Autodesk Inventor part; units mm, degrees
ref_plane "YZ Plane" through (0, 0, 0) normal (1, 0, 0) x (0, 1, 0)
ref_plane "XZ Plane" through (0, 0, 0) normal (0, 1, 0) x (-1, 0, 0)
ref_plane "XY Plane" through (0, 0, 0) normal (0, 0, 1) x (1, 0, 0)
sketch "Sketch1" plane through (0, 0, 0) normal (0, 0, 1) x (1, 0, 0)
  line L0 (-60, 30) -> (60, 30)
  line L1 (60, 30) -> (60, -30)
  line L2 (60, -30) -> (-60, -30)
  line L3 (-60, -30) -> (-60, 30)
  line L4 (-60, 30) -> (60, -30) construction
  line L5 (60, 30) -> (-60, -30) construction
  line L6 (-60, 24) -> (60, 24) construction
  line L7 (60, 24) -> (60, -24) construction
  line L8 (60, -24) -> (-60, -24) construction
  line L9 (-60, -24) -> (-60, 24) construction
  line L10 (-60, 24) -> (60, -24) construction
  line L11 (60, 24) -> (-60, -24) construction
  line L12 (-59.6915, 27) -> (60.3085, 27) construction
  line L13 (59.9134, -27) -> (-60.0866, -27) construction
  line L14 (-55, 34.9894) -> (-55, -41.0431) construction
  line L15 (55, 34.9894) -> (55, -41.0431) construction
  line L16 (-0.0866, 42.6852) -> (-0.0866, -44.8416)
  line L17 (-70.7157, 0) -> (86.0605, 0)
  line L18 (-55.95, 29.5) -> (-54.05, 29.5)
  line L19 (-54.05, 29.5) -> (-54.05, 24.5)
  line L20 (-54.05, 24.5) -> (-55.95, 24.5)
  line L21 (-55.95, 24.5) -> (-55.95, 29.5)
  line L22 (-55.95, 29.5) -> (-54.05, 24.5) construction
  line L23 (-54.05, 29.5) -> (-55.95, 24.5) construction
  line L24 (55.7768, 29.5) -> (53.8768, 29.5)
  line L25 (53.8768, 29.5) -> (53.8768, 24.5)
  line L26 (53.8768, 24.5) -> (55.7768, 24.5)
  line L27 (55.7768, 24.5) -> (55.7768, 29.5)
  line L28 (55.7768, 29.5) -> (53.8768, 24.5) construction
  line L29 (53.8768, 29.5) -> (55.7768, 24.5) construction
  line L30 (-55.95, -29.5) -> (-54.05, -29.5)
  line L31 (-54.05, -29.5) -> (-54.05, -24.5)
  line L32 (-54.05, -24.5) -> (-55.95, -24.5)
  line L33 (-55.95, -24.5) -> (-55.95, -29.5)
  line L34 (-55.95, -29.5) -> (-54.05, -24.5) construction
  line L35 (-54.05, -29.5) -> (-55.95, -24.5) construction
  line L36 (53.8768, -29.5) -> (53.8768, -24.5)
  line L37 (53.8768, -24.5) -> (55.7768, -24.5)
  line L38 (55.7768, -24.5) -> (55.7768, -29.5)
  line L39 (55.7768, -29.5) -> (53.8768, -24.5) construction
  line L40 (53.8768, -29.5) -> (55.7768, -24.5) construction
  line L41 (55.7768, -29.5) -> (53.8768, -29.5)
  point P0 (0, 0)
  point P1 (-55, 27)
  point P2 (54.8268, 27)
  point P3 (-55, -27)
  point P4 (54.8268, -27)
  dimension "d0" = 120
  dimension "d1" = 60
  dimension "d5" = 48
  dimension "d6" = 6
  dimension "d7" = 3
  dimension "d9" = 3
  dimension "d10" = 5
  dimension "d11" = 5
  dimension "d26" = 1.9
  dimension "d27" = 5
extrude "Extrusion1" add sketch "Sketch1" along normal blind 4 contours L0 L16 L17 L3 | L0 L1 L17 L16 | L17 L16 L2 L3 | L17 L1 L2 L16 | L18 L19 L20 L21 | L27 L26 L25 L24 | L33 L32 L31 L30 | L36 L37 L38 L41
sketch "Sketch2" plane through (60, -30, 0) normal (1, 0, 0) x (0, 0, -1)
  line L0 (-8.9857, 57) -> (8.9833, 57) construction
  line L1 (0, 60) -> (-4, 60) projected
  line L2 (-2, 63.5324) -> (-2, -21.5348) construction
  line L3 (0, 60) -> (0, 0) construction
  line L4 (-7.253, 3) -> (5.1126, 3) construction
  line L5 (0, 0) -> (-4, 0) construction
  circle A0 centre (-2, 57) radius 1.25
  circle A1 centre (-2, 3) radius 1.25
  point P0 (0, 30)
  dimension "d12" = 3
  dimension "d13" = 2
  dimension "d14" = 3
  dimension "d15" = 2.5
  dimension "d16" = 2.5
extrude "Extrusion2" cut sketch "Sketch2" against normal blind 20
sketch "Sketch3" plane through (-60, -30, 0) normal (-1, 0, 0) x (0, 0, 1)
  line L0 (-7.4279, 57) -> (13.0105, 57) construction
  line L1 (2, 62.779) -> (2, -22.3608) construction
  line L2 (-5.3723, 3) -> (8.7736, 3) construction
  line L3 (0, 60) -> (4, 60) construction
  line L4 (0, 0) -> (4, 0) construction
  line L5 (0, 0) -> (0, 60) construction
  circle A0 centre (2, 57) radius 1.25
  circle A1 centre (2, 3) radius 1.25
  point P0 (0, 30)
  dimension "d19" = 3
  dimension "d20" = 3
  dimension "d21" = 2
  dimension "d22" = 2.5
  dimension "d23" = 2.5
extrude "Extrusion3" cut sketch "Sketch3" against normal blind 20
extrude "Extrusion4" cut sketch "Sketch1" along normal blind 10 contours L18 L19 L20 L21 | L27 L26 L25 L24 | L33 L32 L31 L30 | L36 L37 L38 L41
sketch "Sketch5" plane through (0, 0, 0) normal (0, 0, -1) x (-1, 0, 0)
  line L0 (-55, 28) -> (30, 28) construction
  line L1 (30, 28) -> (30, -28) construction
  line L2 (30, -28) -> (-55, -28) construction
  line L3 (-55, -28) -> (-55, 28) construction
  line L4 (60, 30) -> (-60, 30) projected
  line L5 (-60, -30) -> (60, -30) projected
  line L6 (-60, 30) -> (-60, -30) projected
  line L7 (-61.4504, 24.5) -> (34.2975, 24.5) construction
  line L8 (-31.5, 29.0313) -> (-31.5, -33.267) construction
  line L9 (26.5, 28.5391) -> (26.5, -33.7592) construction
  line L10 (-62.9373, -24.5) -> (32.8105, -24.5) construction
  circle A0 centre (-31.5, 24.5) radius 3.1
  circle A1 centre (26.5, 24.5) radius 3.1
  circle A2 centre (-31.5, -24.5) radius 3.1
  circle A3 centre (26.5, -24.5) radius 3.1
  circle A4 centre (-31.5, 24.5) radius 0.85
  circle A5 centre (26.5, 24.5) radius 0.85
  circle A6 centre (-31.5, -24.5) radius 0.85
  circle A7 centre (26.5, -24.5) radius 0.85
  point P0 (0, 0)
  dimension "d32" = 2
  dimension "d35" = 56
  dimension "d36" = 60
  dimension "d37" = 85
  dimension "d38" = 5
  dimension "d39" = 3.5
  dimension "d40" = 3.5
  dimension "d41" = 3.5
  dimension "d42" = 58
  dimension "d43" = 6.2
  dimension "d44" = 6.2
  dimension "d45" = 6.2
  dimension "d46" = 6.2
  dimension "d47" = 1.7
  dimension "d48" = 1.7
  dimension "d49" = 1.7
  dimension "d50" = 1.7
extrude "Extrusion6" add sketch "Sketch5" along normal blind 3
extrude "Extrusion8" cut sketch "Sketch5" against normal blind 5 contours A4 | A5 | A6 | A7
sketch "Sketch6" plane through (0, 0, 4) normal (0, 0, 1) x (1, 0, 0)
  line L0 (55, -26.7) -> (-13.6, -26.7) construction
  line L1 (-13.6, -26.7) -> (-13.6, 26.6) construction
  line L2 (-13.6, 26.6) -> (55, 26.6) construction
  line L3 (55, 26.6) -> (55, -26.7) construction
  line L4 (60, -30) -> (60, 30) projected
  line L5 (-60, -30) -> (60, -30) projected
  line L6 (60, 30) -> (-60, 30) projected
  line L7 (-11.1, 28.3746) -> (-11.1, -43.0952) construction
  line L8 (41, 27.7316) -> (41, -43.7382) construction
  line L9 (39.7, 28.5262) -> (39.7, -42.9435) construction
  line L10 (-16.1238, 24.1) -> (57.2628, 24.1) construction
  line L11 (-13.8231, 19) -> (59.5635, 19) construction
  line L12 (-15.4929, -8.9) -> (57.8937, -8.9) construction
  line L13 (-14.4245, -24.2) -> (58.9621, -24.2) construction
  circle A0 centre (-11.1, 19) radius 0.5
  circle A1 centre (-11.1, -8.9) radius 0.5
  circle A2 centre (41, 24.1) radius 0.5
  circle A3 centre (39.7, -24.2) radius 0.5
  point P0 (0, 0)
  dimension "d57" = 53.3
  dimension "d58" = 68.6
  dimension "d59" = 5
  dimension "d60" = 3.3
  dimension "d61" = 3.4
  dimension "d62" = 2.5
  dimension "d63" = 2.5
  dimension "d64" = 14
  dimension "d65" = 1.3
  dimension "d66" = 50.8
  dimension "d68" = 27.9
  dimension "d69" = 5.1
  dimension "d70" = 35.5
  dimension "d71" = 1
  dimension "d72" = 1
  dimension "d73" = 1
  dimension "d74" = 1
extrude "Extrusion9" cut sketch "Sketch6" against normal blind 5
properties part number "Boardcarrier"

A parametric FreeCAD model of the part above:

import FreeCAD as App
import Part
import Sketcher

V = App.Vector

doc = App.newDocument("Part")
body = doc.addObject("PartDesign::Body", "Body")

# Sketch on XY plane
sketch1 = body.newObject("Sketcher::SketchObject", "Sketch")
sketch1.AttachmentSupport = (doc.getObject("XY_Plane"), [""])
sketch1.MapMode = "FlatFace"
sketch1.addGeometry(Part.LineSegment(V(-60, 30, 0), V(-60, -30, 0)), False)
sketch1.addGeometry(Part.LineSegment(V(-60, -30, 0), V(60, -30, 0)), False)
sketch1.addGeometry(Part.LineSegment(V(60, -30, 0), V(60, 30, 0)), False)
sketch1.addGeometry(Part.LineSegment(V(60, 30, 0), V(-60, 30, 0)), False)
sketch1.addConstraint(Sketcher.Constraint("Coincident", 0, 2, 1, 1))
sketch1.addConstraint(Sketcher.Constraint("Coincident", 1, 2, 2, 1))
sketch1.addConstraint(Sketcher.Constraint("Coincident", 2, 2, 3, 1))
sketch1.addConstraint(Sketcher.Constraint("Coincident", 3, 2, 0, 1))
sketch1.addConstraint(Sketcher.Constraint("Vertical", 0))
sketch1.addConstraint(Sketcher.Constraint("Horizontal", 1))
sketch1.addConstraint(Sketcher.Constraint("Vertical", 2))
sketch1.addConstraint(Sketcher.Constraint("Horizontal", 3))
sketch1.addConstraint(Sketcher.Constraint("Symmetric", 0, 2, 2, 2, -1, 1))
sketch1.addConstraint(Sketcher.Constraint("DistanceX", 1, 1, 1, 2, 120.0))
sketch1.addConstraint(Sketcher.Constraint("DistanceY", 0, 2, 0, 1, 60.0))
pad1 = body.newObject("PartDesign::Pad", "Pad")
pad1.Profile = sketch1
pad1.Length = 4

# Sketch on YZ plane
sketch2 = body.newObject("Sketcher::SketchObject", "Sketch001")
sketch2.AttachmentSupport = (doc.getObject("YZ_Plane"), [""])
sketch2.MapMode = "FlatFace"
sketch2.AttachmentOffset = App.Placement(V(0, 0, 60), App.Rotation())
sketch2.addGeometry(Part.Circle(V(27, 2, 0), V(0, 0, 1), 1.2), False)
sketch2.addGeometry(Part.Circle(V(-27, 2, 0), V(0, 0, 1), 1.2), False)
sketch2.addConstraint(Sketcher.Constraint("Equal", 0, 1))
sketch2.addConstraint(Sketcher.Constraint("Symmetric", 0, 3, 1, 3, -2))
sketch2.addConstraint(Sketcher.Constraint("Diameter", 0, 2.5))
sketch2.addConstraint(Sketcher.Constraint("DistanceY", -1, 1, 0, 3, 2.0))
sketch2.addConstraint(Sketcher.Constraint("DistanceX", -1, 1, 0, 3, 27.0))
pocket1 = body.newObject("PartDesign::Pocket", "Pocket")
pocket1.Profile = sketch2
pocket1.Length = 20

# Sketch on YZ plane
sketch3 = body.newObject("Sketcher::SketchObject", "Sketch002")
sketch3.AttachmentSupport = (doc.getObject("YZ_Plane"), [""])
sketch3.MapMode = "FlatFace"
sketch3.AttachmentOffset = App.Placement(V(0, 0, -60), App.Rotation())
sketch3.addGeometry(Part.Circle(V(27, 2, 0), V(0, 0, 1), 1.2), False)
sketch3.addGeometry(Part.Circle(V(-27, 2, 0), V(0, 0, 1), 1.2), False)
sketch3.addConstraint(Sketcher.Constraint("Equal", 0, 1))
sketch3.addConstraint(Sketcher.Constraint("Symmetric", 0, 3, 1, 3, -2))
sketch3.addConstraint(Sketcher.Constraint("Diameter", 0, 2.5))
sketch3.addConstraint(Sketcher.Constraint("DistanceY", -1, 1, 0, 3, 2.0))
sketch3.addConstraint(Sketcher.Constraint("DistanceX", -1, 1, 0, 3, 27.0))
pocket2 = body.newObject("PartDesign::Pocket", "Pocket001")
pocket2.Profile = sketch3
pocket2.Length = 20
pocket2.Reversed = True

# Sketch on XY plane
sketch4 = body.newObject("Sketcher::SketchObject", "Sketch003")
sketch4.AttachmentSupport = (doc.getObject("XY_Plane"), [""])
sketch4.MapMode = "FlatFace"
sketch4.addGeometry(Part.LineSegment(V(-54, 29.5, 0), V(-56, 29.5, 0)), False)
sketch4.addGeometry(Part.LineSegment(V(-56, 29.5, 0), V(-56, 24.5, 0)), False)
sketch4.addGeometry(Part.LineSegment(V(-56, 24.5, 0), V(-54, 24.5, 0)), False)
sketch4.addGeometry(Part.LineSegment(V(-54, 24.5, 0), V(-54, 29.5, 0)), False)
sketch4.addGeometry(Part.LineSegment(V(55.8, 24.5, 0), V(55.8, 29.5, 0)), False)
sketch4.addGeometry(Part.LineSegment(V(55.8, 29.5, 0), V(53.9, 29.5, 0)), False)
sketch4.addGeometry(Part.LineSegment(V(53.9, 29.5, 0), V(53.9, 24.5, 0)), False)
sketch4.addGeometry(Part.LineSegment(V(53.9, 24.5, 0), V(55.8, 24.5, 0)), False)
sketch4.addGeometry(Part.LineSegment(V(-56, -24.5, 0), V(-56, -29.5, 0)), False)
sketch4.addGeometry(Part.LineSegment(V(-56, -29.5, 0), V(-54, -29.5, 0)), False)
sketch4.addGeometry(Part.LineSegment(V(-54, -29.5, 0), V(-54, -24.5, 0)), False)
sketch4.addGeometry(Part.LineSegment(V(-54, -24.5, 0), V(-56, -24.5, 0)), False)
sketch4.addGeometry(Part.LineSegment(V(53.9, -24.5, 0), V(53.9, -29.5, 0)), False)
sketch4.addGeometry(Part.LineSegment(V(53.9, -29.5, 0), V(55.8, -29.5, 0)), False)
sketch4.addGeometry(Part.LineSegment(V(55.8, -29.5, 0), V(55.8, -24.5, 0)), False)
sketch4.addGeometry(Part.LineSegment(V(55.8, -24.5, 0), V(53.9, -24.5, 0)), False)
sketch4.addConstraint(Sketcher.Constraint("Coincident", 0, 2, 1, 1))
sketch4.addConstraint(Sketcher.Constraint("Coincident", 1, 2, 2, 1))
sketch4.addConstraint(Sketcher.Constraint("Coincident", 2, 2, 3, 1))
sketch4.addConstraint(Sketcher.Constraint("Coincident", 3, 2, 0, 1))
sketch4.addConstraint(Sketcher.Constraint("Coincident", 4, 2, 5, 1))
sketch4.addConstraint(Sketcher.Constraint("Coincident", 5, 2, 6, 1))
sketch4.addConstraint(Sketcher.Constraint("Coincident", 6, 2, 7, 1))
sketch4.addConstraint(Sketcher.Constraint("Coincident", 7, 2, 4, 1))
sketch4.addConstraint(Sketcher.Constraint("Coincident", 8, 2, 9, 1))
sketch4.addConstraint(Sketcher.Constraint("Coincident", 9, 2, 10, 1))
sketch4.addConstraint(Sketcher.Constraint("Coincident", 10, 2, 11, 1))
sketch4.addConstraint(Sketcher.Constraint("Coincident", 11, 2, 8, 1))
sketch4.addConstraint(Sketcher.Constraint("Coincident", 12, 2, 13, 1))
sketch4.addConstraint(Sketcher.Constraint("Coincident", 13, 2, 14, 1))
sketch4.addConstraint(Sketcher.Constraint("Coincident", 14, 2, 15, 1))
sketch4.addConstraint(Sketcher.Constraint("Coincident", 15, 2, 12, 1))
sketch4.addConstraint(Sketcher.Constraint("Horizontal", 0))
sketch4.addConstraint(Sketcher.Constraint("Vertical", 1))
sketch4.addConstraint(Sketcher.Constraint("Horizontal", 2))
sketch4.addConstraint(Sketcher.Constraint("Vertical", 3))
sketch4.addConstraint(Sketcher.Constraint("Vertical", 4))
sketch4.addConstraint(Sketcher.Constraint("Horizontal", 5))
sketch4.addConstraint(Sketcher.Constraint("Vertical", 6))
sketch4.addConstraint(Sketcher.Constraint("Horizontal", 7))
sketch4.addConstraint(Sketcher.Constraint("Vertical", 8))
sketch4.addConstraint(Sketcher.Constraint("Horizontal", 9))
sketch4.addConstraint(Sketcher.Constraint("Vertical", 10))
sketch4.addConstraint(Sketcher.Constraint("Horizontal", 11))
sketch4.addConstraint(Sketcher.Constraint("Vertical", 12))
sketch4.addConstraint(Sketcher.Constraint("Horizontal", 13))
sketch4.addConstraint(Sketcher.Constraint("Vertical", 14))
sketch4.addConstraint(Sketcher.Constraint("Horizontal", 15))
sketch4.addConstraint(Sketcher.Constraint("Symmetric", 0, 2, 8, 2, -1))
sketch4.addConstraint(Sketcher.Constraint("Symmetric", 2, 2, 10, 2, -1))
sketch4.addConstraint(Sketcher.Constraint("Symmetric", 5, 2, 12, 2, -1))
sketch4.addConstraint(Sketcher.Constraint("Symmetric", 7, 2, 14, 2, -1))
sketch4.addConstraint(Sketcher.Constraint("Horizontal", 3, 2, 4, 2))
sketch4.addConstraint(Sketcher.Constraint("Horizontal", 2, 2, 6, 2))
sketch4.addConstraint(Sketcher.Constraint("Equal", 2, 5))
sketch4.addConstraint(Sketcher.Constraint("DistanceY", 1, 2, 1, 1, 5.0))
sketch4.addConstraint(Sketcher.Constraint("DistanceX", 0, 2, 0, 1, 1.9))
sketch4.addConstraint(Sketcher.Constraint("DistanceY", 8, 2, 1, 2, 54.0))
sketch4.addConstraint(Sketcher.Constraint("DistanceX", 0, 2, -1, 1, 55.95))
sketch4.addConstraint(Sketcher.Constraint("DistanceX", -1, 1, 4, 2, 55.7768))
pocket3 = body.newObject("PartDesign::Pocket", "Pocket002")
pocket3.Profile = sketch4
pocket3.Length = 10
pocket3.Reversed = True

# Sketch on XY plane
sketch5 = body.newObject("Sketcher::SketchObject", "Sketch004")
sketch5.AttachmentSupport = (doc.getObject("XY_Plane"), [""])
sketch5.MapMode = "FlatFace"
sketch5.addGeometry(Part.Circle(V(31.5, 24.5, 0), V(0, 0, 1), 3.1), False)
sketch5.addGeometry(Part.Circle(V(31.5, 24.5, 0), V(0, 0, 1), 0.8), False)
sketch5.addGeometry(Part.Circle(V(-26.5, 24.5, 0), V(0, 0, 1), 3.1), False)
sketch5.addGeometry(Part.Circle(V(-26.5, 24.5, 0), V(0, 0, 1), 0.8), False)
sketch5.addGeometry(Part.Circle(V(31.5, -24.5, 0), V(0, 0, 1), 3.1), False)
sketch5.addGeometry(Part.Circle(V(31.5, -24.5, 0), V(0, 0, 1), 0.8), False)
sketch5.addGeometry(Part.Circle(V(-26.5, -24.5, 0), V(0, 0, 1), 3.1), False)
sketch5.addGeometry(Part.Circle(V(-26.5, -24.5, 0), V(0, 0, 1), 0.8), False)
sketch5.addConstraint(Sketcher.Constraint("Coincident", 1, 3, 0, 3))
sketch5.addConstraint(Sketcher.Constraint("Coincident", 3, 3, 2, 3))
sketch5.addConstraint(Sketcher.Constraint("Coincident", 5, 3, 4, 3))
sketch5.addConstraint(Sketcher.Constraint("Coincident", 7, 3, 6, 3))
sketch5.addConstraint(Sketcher.Constraint("Equal", 0, 2))
sketch5.addConstraint(Sketcher.Constraint("Equal", 1, 3))
sketch5.addConstraint(Sketcher.Constraint("Equal", 2, 4))
sketch5.addConstraint(Sketcher.Constraint("Equal", 3, 5))
sketch5.addConstraint(Sketcher.Constraint("Equal", 4, 6))
sketch5.addConstraint(Sketcher.Constraint("Equal", 5, 7))
sketch5.addConstraint(Sketcher.Constraint("Symmetric", 0, 3, 4, 3, -1))
sketch5.addConstraint(Sketcher.Constraint("Symmetric", 2, 3, 6, 3, -1))
sketch5.addConstraint(Sketcher.Constraint("Horizontal", 1, 3, 2, 3))
sketch5.addConstraint(Sketcher.Constraint("Diameter", 0, 6.2))
sketch5.addConstraint(Sketcher.Constraint("Diameter", 1, 1.7))
sketch5.addConstraint(Sketcher.Constraint("DistanceX", 2, 3, 0, 3, 58.0))
sketch5.addConstraint(Sketcher.Constraint("DistanceY", 4, 3, 0, 3, 49.0))
sketch5.addConstraint(Sketcher.Constraint("DistanceX", -1, 1, 0, 3, 31.5))
pad2 = body.newObject("PartDesign::Pad", "Pad001")
pad2.Profile = sketch5
pad2.Length = 3
pad2.Reversed = True

# Sketch on XY plane
sketch6 = body.newObject("Sketcher::SketchObject", "Sketch005")
sketch6.AttachmentSupport = (doc.getObject("XY_Plane"), [""])
sketch6.MapMode = "FlatFace"
sketch6.addGeometry(Part.Circle(V(31.5, 24.5, 0), V(0, 0, 1), 0.8), False)
sketch6.addGeometry(Part.Circle(V(-26.5, 24.5, 0), V(0, 0, 1), 0.8), False)
sketch6.addGeometry(Part.Circle(V(31.5, -24.5, 0), V(0, 0, 1), 0.8), False)
sketch6.addGeometry(Part.Circle(V(-26.5, -24.5, 0), V(0, 0, 1), 0.8), False)
sketch6.addConstraint(Sketcher.Constraint("Equal", 0, 1))
sketch6.addConstraint(Sketcher.Constraint("Equal", 1, 2))
sketch6.addConstraint(Sketcher.Constraint("Equal", 2, 3))
sketch6.addConstraint(Sketcher.Constraint("Symmetric", 0, 3, 2, 3, -1))
sketch6.addConstraint(Sketcher.Constraint("Symmetric", 1, 3, 3, 3, -1))
sketch6.addConstraint(Sketcher.Constraint("Horizontal", 0, 3, 1, 3))
sketch6.addConstraint(Sketcher.Constraint("Diameter", 0, 1.7))
sketch6.addConstraint(Sketcher.Constraint("DistanceX", 1, 3, 0, 3, 58.0))
sketch6.addConstraint(Sketcher.Constraint("DistanceY", 2, 3, 0, 3, 49.0))
sketch6.addConstraint(Sketcher.Constraint("DistanceX", -1, 1, 0, 3, 31.5))
pocket4 = body.newObject("PartDesign::Pocket", "Pocket003")
pocket4.Profile = sketch6
pocket4.Length = 5
pocket4.Reversed = True

# Sketch on XY plane
sketch7 = body.newObject("Sketcher::SketchObject", "Sketch006")
sketch7.AttachmentSupport = (doc.getObject("XY_Plane"), [""])
sketch7.MapMode = "FlatFace"
sketch7.AttachmentOffset = App.Placement(V(0, 0, 4), App.Rotation())
sketch7.addGeometry(Part.Circle(V(-11.1, 19, 0), V(0, 0, 1), 0.5), False)
sketch7.addGeometry(Part.Circle(V(-11.1, -8.9, 0), V(0, 0, 1), 0.5), False)
sketch7.addGeometry(Part.Circle(V(41, 24.1, 0), V(0, 0, 1), 0.5), False)
sketch7.addGeometry(Part.Circle(V(39.7, -24.2, 0), V(0, 0, 1), 0.5), False)
sketch7.addConstraint(Sketcher.Constraint("Equal", 0, 1))
sketch7.addConstraint(Sketcher.Constraint("Equal", 1, 2))
sketch7.addConstraint(Sketcher.Constraint("Equal", 2, 3))
sketch7.addConstraint(Sketcher.Constraint("Vertical", 0, 3, 1, 3))
sketch7.addConstraint(Sketcher.Constraint("Diameter", 0, 1.0))
sketch7.addConstraint(Sketcher.Constraint("DistanceY", 1, 3, 0, 3, 27.9))
sketch7.addConstraint(Sketcher.Constraint("DistanceY", 0, 3, 2, 3, 5.1))
sketch7.addConstraint(Sketcher.Constraint("DistanceX", 3, 3, 2, 3, 1.3))
sketch7.addConstraint(Sketcher.Constraint("DistanceX", 1, 3, 3, 3, 50.8))
sketch7.addConstraint(Sketcher.Constraint("DistanceY", -1, 1, 0, 3, 19.0))
sketch7.addConstraint(Sketcher.Constraint("DistanceX", -1, 1, 2, 3, 41.0))
sketch7.addConstraint(Sketcher.Constraint("DistanceY", 3, 3, -1, 1, 24.2))
pocket5 = body.newObject("PartDesign::Pocket", "Pocket004")
pocket5.Profile = sketch7
pocket5.Length = 5

doc.recompute()
